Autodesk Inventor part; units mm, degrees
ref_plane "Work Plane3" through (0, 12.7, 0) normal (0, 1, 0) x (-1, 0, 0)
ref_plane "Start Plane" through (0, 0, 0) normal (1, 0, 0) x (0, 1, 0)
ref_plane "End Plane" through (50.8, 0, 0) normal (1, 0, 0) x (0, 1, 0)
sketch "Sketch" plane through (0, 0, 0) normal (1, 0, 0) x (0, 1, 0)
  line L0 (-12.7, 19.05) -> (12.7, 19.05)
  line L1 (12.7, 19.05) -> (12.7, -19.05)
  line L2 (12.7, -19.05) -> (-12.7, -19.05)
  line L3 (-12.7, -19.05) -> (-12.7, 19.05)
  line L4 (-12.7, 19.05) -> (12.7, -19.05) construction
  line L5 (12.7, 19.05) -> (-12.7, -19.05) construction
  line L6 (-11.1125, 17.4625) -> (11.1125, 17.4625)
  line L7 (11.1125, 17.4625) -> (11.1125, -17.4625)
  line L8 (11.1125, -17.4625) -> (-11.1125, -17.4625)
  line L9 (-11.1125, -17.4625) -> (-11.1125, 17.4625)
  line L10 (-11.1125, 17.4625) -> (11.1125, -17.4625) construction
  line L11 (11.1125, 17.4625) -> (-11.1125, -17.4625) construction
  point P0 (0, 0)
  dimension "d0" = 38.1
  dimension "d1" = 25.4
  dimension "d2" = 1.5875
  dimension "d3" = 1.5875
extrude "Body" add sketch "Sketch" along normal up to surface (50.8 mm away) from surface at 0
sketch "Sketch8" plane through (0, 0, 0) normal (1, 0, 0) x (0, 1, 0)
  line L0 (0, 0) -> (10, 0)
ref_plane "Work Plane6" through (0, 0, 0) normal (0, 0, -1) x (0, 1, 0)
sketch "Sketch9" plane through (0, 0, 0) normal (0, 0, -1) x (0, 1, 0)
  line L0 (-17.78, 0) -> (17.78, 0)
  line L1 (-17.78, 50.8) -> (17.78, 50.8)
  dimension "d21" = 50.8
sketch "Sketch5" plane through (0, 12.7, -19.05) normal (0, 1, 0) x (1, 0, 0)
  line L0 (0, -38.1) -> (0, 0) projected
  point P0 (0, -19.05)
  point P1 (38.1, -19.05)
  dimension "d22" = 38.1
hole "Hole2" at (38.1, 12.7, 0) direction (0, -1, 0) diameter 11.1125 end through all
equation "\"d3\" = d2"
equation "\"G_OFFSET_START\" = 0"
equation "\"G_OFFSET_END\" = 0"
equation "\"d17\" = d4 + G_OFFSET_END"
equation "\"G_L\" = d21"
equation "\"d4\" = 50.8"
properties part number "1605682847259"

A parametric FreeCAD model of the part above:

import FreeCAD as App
import Part
import Sketcher
Q = App.Units.Quantity


def add_polygon(sketch, points):
    """Adds a closed chain of lines whose ends are joined by coincident constraints."""
    first, n = sketch.GeometryCount, len(points)
    for a, b in zip(points, points[1:] + points[:1]):
        sketch.addGeometry(Part.LineSegment(App.Vector(*a, 0), App.Vector(*b, 0)), False)
    for i in range(n):
        sketch.addConstraint(Sketcher.Constraint("Coincident", first + i, 2, first + (i + 1) % n, 1))

doc = App.newDocument("Part")
params = doc.addObject("Spreadsheet::Sheet", "Params")
for row, (alias, value) in enumerate([
    ("sketch1_width", "1 in"),
    ("sketch1_height", "1.5 in"),
    ("pad1_length", "2 in"),
    ("sketch2_diameter", "0.4375 in"),
    ("hole_diameter", "0.4375 in"),
], start=1):
    params.set(f"A{row}", alias)
    params.set(f"B{row}", "=" + value)
    params.setAlias(f"B{row}", alias)

body = doc.addObject("PartDesign::Body", "Body")

sketch1 = body.newObject("Sketcher::SketchObject", "Sketch")
sketch1.AttachmentSupport = (doc.getObject("YZ_Plane"), [""])
sketch1.MapMode = "FlatFace"
add_polygon(sketch1, [(12.7, 19.05), (-12.7, 19.05), (-12.7, -19.05), (12.7, -19.05)])
add_polygon(sketch1, [(-11.1125, -17.4625), (-11.1125, 17.4625), (11.1125, 17.4625), (11.1125, -17.4625)])
sketch1.addConstraint([
    Sketcher.Constraint("Horizontal", 0),
    Sketcher.Constraint("Vertical", 1),
    Sketcher.Constraint("Horizontal", 2),
    Sketcher.Constraint("Vertical", 3),
    Sketcher.Constraint("Vertical", 4),
    Sketcher.Constraint("Horizontal", 5),
    Sketcher.Constraint("Vertical", 6),
    Sketcher.Constraint("Horizontal", 7),
    Sketcher.Constraint("Symmetric", 0, 2, 2, 2, -1, 1),
    Sketcher.Constraint("Symmetric", 4, 2, 6, 2, -1, 1),
    Sketcher.Constraint("DistanceX", 0, 2, 0, 1, Q("1 in")),
    Sketcher.Constraint("DistanceY", 1, 2, 1, 1, Q("1.5 in")),
    Sketcher.Constraint("DistanceX", 0, 2, 4, 2, Q("0.0625 in")),
    Sketcher.Constraint("DistanceY", 4, 2, 0, 2, Q("0.0625 in")),
])
sketch1.setExpression("Constraints[18]", "Params.sketch1_width")
sketch1.setExpression("Constraints[19]", "Params.sketch1_height")
pad1 = body.newObject("PartDesign::Pad", "Pad")
pad1.Profile = sketch1
pad1.setExpression("Length", "Params.pad1_length")

sketch2 = body.newObject("Sketcher::SketchObject", "Sketch001")
sketch2.AttachmentSupport = (doc.getObject("XZ_Plane"), [""])
sketch2.MapMode = "FlatFace"
sketch2.AttachmentOffset = App.Placement(App.Vector(0, 0, -0.5 * 25.4), App.Rotation())
sketch2.addGeometry(Part.Circle(App.Vector(38.1, 0, 0), App.Vector(0, 0, 1), 5.55625), False)
sketch2.addConstraint([
    Sketcher.Constraint("PointOnObject", 0, 3, -1),
    Sketcher.Constraint("Diameter", 0, Q("0.4375 in")),
    Sketcher.Constraint("DistanceX", -1, 1, 0, 3, Q("1.5 in")),
])
sketch2.setExpression("Constraints[1]", "Params.sketch2_diameter")
doc.recompute()
hole = body.newObject("PartDesign::Hole", "Hole")
hole.Profile = sketch2
hole.ThreadType = "None"
hole.setExpression("Diameter", "Params.hole_diameter")
hole.DepthType = "ThroughAll"
hole.Reversed = True

doc.recompute()
